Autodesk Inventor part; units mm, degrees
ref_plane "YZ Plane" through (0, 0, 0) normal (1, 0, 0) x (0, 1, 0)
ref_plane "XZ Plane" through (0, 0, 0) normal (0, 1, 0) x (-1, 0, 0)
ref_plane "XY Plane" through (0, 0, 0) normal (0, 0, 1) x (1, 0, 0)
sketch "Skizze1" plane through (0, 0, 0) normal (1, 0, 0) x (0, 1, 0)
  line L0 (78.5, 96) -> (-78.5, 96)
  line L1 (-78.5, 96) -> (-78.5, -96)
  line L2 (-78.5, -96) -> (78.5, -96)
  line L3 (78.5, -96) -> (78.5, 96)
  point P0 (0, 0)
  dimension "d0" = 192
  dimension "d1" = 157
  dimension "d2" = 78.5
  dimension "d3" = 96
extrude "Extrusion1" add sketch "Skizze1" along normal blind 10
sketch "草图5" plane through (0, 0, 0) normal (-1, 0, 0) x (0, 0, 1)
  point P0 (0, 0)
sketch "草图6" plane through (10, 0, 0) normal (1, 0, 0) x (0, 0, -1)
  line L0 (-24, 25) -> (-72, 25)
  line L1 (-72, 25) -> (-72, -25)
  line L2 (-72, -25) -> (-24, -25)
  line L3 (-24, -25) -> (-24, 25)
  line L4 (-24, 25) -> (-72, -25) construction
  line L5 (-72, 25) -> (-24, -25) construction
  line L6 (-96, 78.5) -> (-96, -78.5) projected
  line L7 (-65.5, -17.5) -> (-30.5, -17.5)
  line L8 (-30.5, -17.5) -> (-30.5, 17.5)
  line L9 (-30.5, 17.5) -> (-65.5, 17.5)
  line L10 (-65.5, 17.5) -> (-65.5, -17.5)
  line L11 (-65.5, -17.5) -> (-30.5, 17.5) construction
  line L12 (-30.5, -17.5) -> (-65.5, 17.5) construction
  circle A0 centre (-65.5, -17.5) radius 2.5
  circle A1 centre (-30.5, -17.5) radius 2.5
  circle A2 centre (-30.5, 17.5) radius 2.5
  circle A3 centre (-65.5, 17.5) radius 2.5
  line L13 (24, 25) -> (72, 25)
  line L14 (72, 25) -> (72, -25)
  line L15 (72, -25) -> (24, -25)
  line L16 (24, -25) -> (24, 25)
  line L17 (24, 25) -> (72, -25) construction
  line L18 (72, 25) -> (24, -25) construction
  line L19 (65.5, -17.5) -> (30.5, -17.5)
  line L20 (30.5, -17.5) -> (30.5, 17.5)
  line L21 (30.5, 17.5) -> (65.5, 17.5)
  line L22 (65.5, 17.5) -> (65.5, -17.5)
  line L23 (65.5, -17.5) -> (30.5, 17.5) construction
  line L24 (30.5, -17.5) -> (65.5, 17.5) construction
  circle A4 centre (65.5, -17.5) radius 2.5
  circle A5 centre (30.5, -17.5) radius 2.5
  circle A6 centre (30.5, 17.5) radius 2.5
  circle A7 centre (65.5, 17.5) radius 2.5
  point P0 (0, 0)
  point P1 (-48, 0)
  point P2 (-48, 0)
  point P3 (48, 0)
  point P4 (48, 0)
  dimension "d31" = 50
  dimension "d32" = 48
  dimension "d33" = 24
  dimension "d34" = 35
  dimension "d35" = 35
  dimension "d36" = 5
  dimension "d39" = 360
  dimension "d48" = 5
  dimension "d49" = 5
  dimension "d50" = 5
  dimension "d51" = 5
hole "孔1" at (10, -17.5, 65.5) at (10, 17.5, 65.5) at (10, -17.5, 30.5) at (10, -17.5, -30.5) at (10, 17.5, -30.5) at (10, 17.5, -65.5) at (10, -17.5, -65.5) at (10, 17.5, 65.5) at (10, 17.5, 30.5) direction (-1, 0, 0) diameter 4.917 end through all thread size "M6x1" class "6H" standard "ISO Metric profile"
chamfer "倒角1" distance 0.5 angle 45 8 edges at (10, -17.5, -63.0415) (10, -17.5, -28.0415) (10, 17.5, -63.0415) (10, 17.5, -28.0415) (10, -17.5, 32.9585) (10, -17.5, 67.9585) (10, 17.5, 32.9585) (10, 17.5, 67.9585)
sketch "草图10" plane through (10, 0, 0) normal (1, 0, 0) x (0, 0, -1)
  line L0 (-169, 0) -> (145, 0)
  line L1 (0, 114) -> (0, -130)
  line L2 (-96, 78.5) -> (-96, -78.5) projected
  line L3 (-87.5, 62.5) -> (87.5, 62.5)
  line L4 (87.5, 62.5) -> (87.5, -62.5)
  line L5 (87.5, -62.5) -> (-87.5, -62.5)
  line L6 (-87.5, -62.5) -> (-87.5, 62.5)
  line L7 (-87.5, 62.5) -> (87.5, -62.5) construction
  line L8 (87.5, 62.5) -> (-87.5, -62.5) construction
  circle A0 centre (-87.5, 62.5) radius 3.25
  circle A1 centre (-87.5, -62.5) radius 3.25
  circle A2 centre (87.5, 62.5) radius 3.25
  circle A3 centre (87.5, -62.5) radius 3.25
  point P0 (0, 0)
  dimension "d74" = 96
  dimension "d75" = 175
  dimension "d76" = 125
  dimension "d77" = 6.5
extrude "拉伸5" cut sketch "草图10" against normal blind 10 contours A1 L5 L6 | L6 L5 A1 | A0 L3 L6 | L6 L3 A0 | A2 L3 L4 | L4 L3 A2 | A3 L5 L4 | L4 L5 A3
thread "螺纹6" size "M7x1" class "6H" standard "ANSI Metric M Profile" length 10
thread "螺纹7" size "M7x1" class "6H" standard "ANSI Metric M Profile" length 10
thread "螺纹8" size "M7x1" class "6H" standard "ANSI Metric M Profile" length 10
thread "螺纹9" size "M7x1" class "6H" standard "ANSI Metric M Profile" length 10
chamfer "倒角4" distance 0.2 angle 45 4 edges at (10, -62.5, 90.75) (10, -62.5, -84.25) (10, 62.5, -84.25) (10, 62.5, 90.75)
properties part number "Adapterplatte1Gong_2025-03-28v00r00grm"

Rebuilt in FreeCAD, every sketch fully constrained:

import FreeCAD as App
import Part
import Sketcher
from FreeCAD import Vector
Q = App.Units.Quantity


def edges_at(feature, points):
    """Names of the edges that pass closest to the given points."""
    edges = feature.Shape.Edges
    near = lambda p: min(range(len(edges)), key=lambda i: edges[i].distToShape(Part.Vertex(*p))[0])
    return sorted({f"Edge{near(p) + 1}" for p in points})

doc = App.newDocument("Part")
body = doc.addObject("PartDesign::Body", "Body")

# Sketch on YZ plane
sketch1 = doc.addObject("Sketcher::SketchObject", "Sketch")
body.addObject(sketch1)
sketch1.AttachmentSupport = (doc.YZ_Plane, [""])
sketch1.MapMode = "FlatFace"
sketch1.addGeometry(Part.LineSegment(Vector(78.5, -96, 0), Vector(78.5, 96, 0)), False)
sketch1.addGeometry(Part.LineSegment(Vector(78.5, 96, 0), Vector(-78.5, 96, 0)), False)
sketch1.addGeometry(Part.LineSegment(Vector(-78.5, 96, 0), Vector(-78.5, -96, 0)), False)
sketch1.addGeometry(Part.LineSegment(Vector(-78.5, -96, 0), Vector(78.5, -96, 0)), False)
sketch1.addConstraint(Sketcher.Constraint("Coincident", 0, 2, 1, 1))
sketch1.addConstraint(Sketcher.Constraint("Coincident", 1, 2, 2, 1))
sketch1.addConstraint(Sketcher.Constraint("Coincident", 2, 2, 3, 1))
sketch1.addConstraint(Sketcher.Constraint("Coincident", 3, 2, 0, 1))
sketch1.addConstraint(Sketcher.Constraint("Vertical", 0))
sketch1.addConstraint(Sketcher.Constraint("Horizontal", 1))
sketch1.addConstraint(Sketcher.Constraint("Vertical", 2))
sketch1.addConstraint(Sketcher.Constraint("Horizontal", 3))
sketch1.addConstraint(Sketcher.Constraint("Symmetric", 0, 2, 2, 2, -1, 1))
sketch1.addConstraint(Sketcher.Constraint("DistanceX", 1, 2, 1, 1, Q("157 mm")))
sketch1.addConstraint(Sketcher.Constraint("DistanceY", 0, 1, 0, 2, Q("192 mm")))
pad1 = doc.addObject("PartDesign::Pad", "Pad")
body.addObject(pad1)
pad1.Profile = sketch1
pad1.Length = 10

# Sketch on YZ plane
sketch2 = doc.addObject("Sketcher::SketchObject", "Sketch001")
body.addObject(sketch2)
sketch2.AttachmentSupport = (doc.YZ_Plane, [""])
sketch2.MapMode = "FlatFace"
sketch2.AttachmentOffset = App.Placement(Vector(0, 0, 10), App.Rotation())
sketch2.addGeometry(Part.Circle(Vector(-17.5, 65.5, 0), Vector(0, 0, 1), 2.4585), False)
sketch2.addGeometry(Part.Circle(Vector(17.5, 65.5, 0), Vector(0, 0, 1), 2.4585), False)
sketch2.addGeometry(Part.Circle(Vector(-17.5, 30.5, 0), Vector(0, 0, 1), 2.4585), False)
sketch2.addGeometry(Part.Circle(Vector(-17.5, -30.5, 0), Vector(0, 0, 1), 2.4585), False)
sketch2.addGeometry(Part.Circle(Vector(17.5, -30.5, 0), Vector(0, 0, 1), 2.4585), False)
sketch2.addGeometry(Part.Circle(Vector(17.5, -65.5, 0), Vector(0, 0, 1), 2.4585), False)
sketch2.addGeometry(Part.Circle(Vector(-17.5, -65.5, 0), Vector(0, 0, 1), 2.4585), False)
sketch2.addGeometry(Part.Circle(Vector(17.5, 65.5, 0), Vector(0, 0, 1), 2.4585), False)
sketch2.addGeometry(Part.Circle(Vector(17.5, 30.5, 0), Vector(0, 0, 1), 2.4585), False)
sketch2.addConstraint(Sketcher.Constraint("Coincident", 7, 3, 1, 3))
sketch2.addConstraint(Sketcher.Constraint("Equal", 0, 1))
sketch2.addConstraint(Sketcher.Constraint("Equal", 1, 2))
sketch2.addConstraint(Sketcher.Constraint("Equal", 2, 3))
sketch2.addConstraint(Sketcher.Constraint("Equal", 3, 4))
sketch2.addConstraint(Sketcher.Constraint("Equal", 4, 5))
sketch2.addConstraint(Sketcher.Constraint("Equal", 5, 6))
sketch2.addConstraint(Sketcher.Constraint("Equal", 6, 7))
sketch2.addConstraint(Sketcher.Constraint("Equal", 7, 8))
sketch2.addConstraint(Sketcher.Constraint("Symmetric", 2, 3, 4, 3, -1, 1))
sketch2.addConstraint(Sketcher.Constraint("Symmetric", 0, 3, 5, 3, -1, 1))
sketch2.addConstraint(Sketcher.Constraint("Symmetric", 1, 3, 6, 3, -1, 1))
sketch2.addConstraint(Sketcher.Constraint("Symmetric", 3, 3, 8, 3, -1, 1))
sketch2.addConstraint(Sketcher.Constraint("Symmetric", 0, 3, 1, 3, -2))
sketch2.addConstraint(Sketcher.Constraint("Symmetric", 3, 3, 4, 3, -2))
sketch2.addConstraint(Sketcher.Constraint("Vertical", 0, 3, 2, 3))
sketch2.addConstraint(Sketcher.Constraint("Diameter", 0, Q("4.917 mm")))
sketch2.addConstraint(Sketcher.Constraint("DistanceX", 0, 3, 1, 3, Q("35 mm")))
sketch2.addConstraint(Sketcher.Constraint("DistanceY", 2, 3, 0, 3, Q("35 mm")))
sketch2.addConstraint(Sketcher.Constraint("DistanceY", 3, 3, 2, 3, Q("61 mm")))
doc.recompute()
hole = doc.addObject("PartDesign::Hole", "Hole")
body.addObject(hole)
hole.Profile = sketch2
hole.ThreadType = "None"
hole.Diameter = 4.917
hole.DepthType = "ThroughAll"
doc.recompute()

chamfer = doc.addObject("PartDesign::Chamfer", "Chamfer")
body.addObject(chamfer)
chamfer.Base = (hole, edges_at(hole, [
    (10, -17.5, -63.041),
    (10, -17.5, -28.041),
    (10, 17.5, -63.041),
    (10, 17.5, -28.041),
    (10, -17.5, 32.959),
    (10, -17.5, 67.959),
    (10, 17.5, 32.959),
    (10, 17.5, 67.959),
]))
chamfer.Size = 0.5

# Sketch on YZ plane
sketch3 = doc.addObject("Sketcher::SketchObject", "Sketch002")
body.addObject(sketch3)
sketch3.AttachmentSupport = (doc.YZ_Plane, [""])
sketch3.MapMode = "FlatFace"
sketch3.AttachmentOffset = App.Placement(Vector(0, 0, 10), App.Rotation())
sketch3.addGeometry(Part.Circle(Vector(-62.5, 87.5, 0), Vector(0, 0, 1), 3.25), False)
sketch3.addGeometry(Part.Circle(Vector(62.5, 87.5, 0), Vector(0, 0, 1), 3.25), False)
sketch3.addGeometry(Part.Circle(Vector(62.5, -87.5, 0), Vector(0, 0, 1), 3.25), False)
sketch3.addGeometry(Part.Circle(Vector(-62.5, -87.5, 0), Vector(0, 0, 1), 3.25), False)
sketch3.addConstraint(Sketcher.Constraint("Equal", 0, 1))
sketch3.addConstraint(Sketcher.Constraint("Equal", 1, 2))
sketch3.addConstraint(Sketcher.Constraint("Equal", 2, 3))
sketch3.addConstraint(Sketcher.Constraint("Symmetric", 0, 3, 2, 3, -1, 1))
sketch3.addConstraint(Sketcher.Constraint("Symmetric", 1, 3, 3, 3, -1, 1))
sketch3.addConstraint(Sketcher.Constraint("Symmetric", 0, 3, 1, 3, -2))
sketch3.addConstraint(Sketcher.Constraint("Diameter", 0, Q("6.5 mm")))
sketch3.addConstraint(Sketcher.Constraint("DistanceX", 0, 3, 1, 3, Q("125 mm")))
sketch3.addConstraint(Sketcher.Constraint("DistanceY", 2, 3, 1, 3, Q("175 mm")))
pocket1 = doc.addObject("PartDesign::Pocket", "Pocket")
body.addObject(pocket1)
pocket1.Profile = sketch3
pocket1.Length = 10
doc.recompute()

chamfer2 = doc.addObject("PartDesign::Chamfer", "Chamfer001")
body.addObject(chamfer2)
chamfer2.Base = (pocket1, edges_at(pocket1, [
    (10, -62.5, 90.75),
    (10, -62.5, -84.25),
    (10, 62.5, -84.25),
    (10, 62.5, 90.75),
]))
chamfer2.Size = 0.2

doc.recompute()
